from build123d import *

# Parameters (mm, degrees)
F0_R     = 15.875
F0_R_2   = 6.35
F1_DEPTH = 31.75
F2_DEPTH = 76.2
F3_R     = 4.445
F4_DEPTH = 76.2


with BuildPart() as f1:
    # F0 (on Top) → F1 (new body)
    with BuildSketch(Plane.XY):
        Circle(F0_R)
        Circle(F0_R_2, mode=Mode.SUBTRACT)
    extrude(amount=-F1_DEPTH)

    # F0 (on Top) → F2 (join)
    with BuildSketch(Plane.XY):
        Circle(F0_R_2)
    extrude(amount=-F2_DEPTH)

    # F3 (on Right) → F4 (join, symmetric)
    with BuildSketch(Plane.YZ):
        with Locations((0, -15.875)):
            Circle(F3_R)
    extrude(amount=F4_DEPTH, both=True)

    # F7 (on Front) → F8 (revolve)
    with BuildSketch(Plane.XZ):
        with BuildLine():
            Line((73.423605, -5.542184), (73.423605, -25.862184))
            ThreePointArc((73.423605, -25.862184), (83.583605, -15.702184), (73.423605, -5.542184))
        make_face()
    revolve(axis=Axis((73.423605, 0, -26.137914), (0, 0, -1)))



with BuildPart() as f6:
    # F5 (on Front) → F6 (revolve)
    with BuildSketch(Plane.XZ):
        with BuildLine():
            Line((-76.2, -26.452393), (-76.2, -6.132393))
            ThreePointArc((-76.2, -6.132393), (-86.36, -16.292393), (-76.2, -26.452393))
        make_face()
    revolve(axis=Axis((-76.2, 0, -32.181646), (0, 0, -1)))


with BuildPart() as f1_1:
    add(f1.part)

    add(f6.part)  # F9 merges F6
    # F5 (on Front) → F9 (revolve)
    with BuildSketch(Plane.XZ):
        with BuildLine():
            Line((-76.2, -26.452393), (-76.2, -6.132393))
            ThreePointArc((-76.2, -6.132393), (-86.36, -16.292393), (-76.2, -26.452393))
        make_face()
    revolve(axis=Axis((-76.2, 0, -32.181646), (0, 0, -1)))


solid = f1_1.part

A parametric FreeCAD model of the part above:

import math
import FreeCAD as App
import Part
import Sketcher

V = App.Vector
Q = App.Units.Quantity

doc = App.newDocument("Part")
body = doc.addObject("PartDesign::Body", "Body")

# Sketch on XY plane
sketch1 = body.newObject("Sketcher::SketchObject", "Sketch")
sketch1.AttachmentSupport = (doc.getObject("XY_Plane"), [""])
sketch1.MapMode = "FlatFace"
sketch1.addGeometry([
    Part.Circle(V(0, 0, 0), V(0, 0, 1), 16),
    Part.Circle(V(0, 0, 0), V(0, 0, 1), 6),
], False)
sketch1.addConstraint([
    Sketcher.Constraint("Coincident", 0, 3, -1, 1),
    Sketcher.Constraint("Coincident", 1, 3, -1, 1),
    Sketcher.Constraint("Diameter", 1, Q("0.5 in")),
    Sketcher.Constraint("Diameter", 0, Q("1.25 in")),
])
pad1 = body.newObject("PartDesign::Pad", "Pad")
pad1.Profile = sketch1
pad1.Length = Q("1.25 in")
pad1.Reversed = True

# Sketch on XY plane
sketch2 = body.newObject("Sketcher::SketchObject", "Sketch001")
sketch2.AttachmentSupport = (doc.getObject("XY_Plane"), [""])
sketch2.MapMode = "FlatFace"
sketch2.addGeometry(Part.Circle(V(0, 0, 0), V(0, 0, 1), 6), False)
sketch2.addConstraint([
    Sketcher.Constraint("Coincident", 0, 3, -1, 1),
    Sketcher.Constraint("Diameter", 0, Q("0.5 in")),
])
pad2 = body.newObject("PartDesign::Pad", "Pad001")
pad2.Profile = sketch2
pad2.Length = Q("3 in")
pad2.Reversed = True

# Sketch on YZ plane
sketch3 = body.newObject("Sketcher::SketchObject", "Sketch002")
sketch3.AttachmentSupport = (doc.getObject("YZ_Plane"), [""])
sketch3.MapMode = "FlatFace"
sketch3.addGeometry(Part.Circle(V(0, -15.9, 0), V(0, 0, 1), 4.4), False)
sketch3.addConstraint([
    Sketcher.Constraint("PointOnObject", 0, 3, -2),
    Sketcher.Constraint("Diameter", 0, Q("0.35 in")),
    Sketcher.Constraint("DistanceY", 0, 3, -1, 1, Q("0.625 in")),
])
pad3 = body.newObject("PartDesign::Pad", "Pad002")
pad3.Profile = sketch3
pad3.Length = Q("6 in")
pad3.Midplane = True

# Sketch on XZ plane
sketch4 = body.newObject("Sketcher::SketchObject", "Sketch003")
sketch4.AttachmentSupport = (doc.getObject("XZ_Plane"), [""])
sketch4.MapMode = "FlatFace"
sketch4.addGeometry([
    Part.LineSegment(V(73, -6, 0), V(73, -26, 0)),
    Part.ArcOfCircle(Part.Circle(V(73, -16, 0), V(0, 0, 1), 10), math.radians(-90), math.radians(90)),
], False)
sketch4.addGeometry(Part.LineSegment(V(73, -6, 0), V(73, -26, 0)), True)  # axis
sketch4.addConstraint([
    Sketcher.Constraint("Coincident", 0, 1, 1, 2),
    Sketcher.Constraint("Coincident", 1, 1, 0, 2),
    Sketcher.Constraint("Vertical", 0),
    Sketcher.Constraint("Vertical", 2),
    Sketcher.Constraint("Coincident", 2, 1, 0, 1),
    Sketcher.Constraint("Vertical", 1, 3, 0, 1),
    Sketcher.Constraint("Equal", 0, 2),
    Sketcher.Constraint("Radius", 1, Q("0.4 in")),
    Sketcher.Constraint("DistanceX", -1, 1, 1, 3, 73.423605),
    Sketcher.Constraint("DistanceY", 1, 3, -1, 1, 15.702184),
])
revolution = body.newObject("PartDesign::Revolution", "Revolution")
revolution.Profile = sketch4
revolution.ReferenceAxis = (sketch4, ["Axis0"])
revolution.Angle = 360
body2 = doc.addObject("PartDesign::Body", "Body001")

# Sketch on XZ plane
sketch5 = body2.newObject("Sketcher::SketchObject", "Sketch004")
sketch5.AttachmentSupport = (doc.getObject("XZ_Plane001"), [""])
sketch5.MapMode = "FlatFace"
sketch5.addGeometry([
    Part.LineSegment(V(-76, -26, 0), V(-76, -6, 0)),
    Part.ArcOfCircle(Part.Circle(V(-76, -16, 0), V(0, 0, 1), 10), math.radians(90), math.radians(270)),
], False)
sketch5.addGeometry(Part.LineSegment(V(-76, -6, 0), V(-76, -26, 0)), True)  # axis
sketch5.addConstraint([
    Sketcher.Constraint("Coincident", 0, 1, 1, 2),
    Sketcher.Constraint("Coincident", 1, 1, 0, 2),
    Sketcher.Constraint("Vertical", 0),
    Sketcher.Constraint("Vertical", 2),
    Sketcher.Constraint("Coincident", 2, 1, 1, 1),
    Sketcher.Constraint("Vertical", 1, 3, 0, 1),
    Sketcher.Constraint("Equal", 0, 2),
    Sketcher.Constraint("Radius", 1, Q("0.4 in")),
    Sketcher.Constraint("DistanceX", 1, 3, -1, 1, Q("3 in")),
    Sketcher.Constraint("DistanceY", 1, 3, -1, 1, 16.292393),
])
revolution2 = body2.newObject("PartDesign::Revolution", "Revolution001")
revolution2.Profile = sketch5
revolution2.ReferenceAxis = (sketch5, ["Axis0"])
revolution2.Angle = 360
doc.recompute()

boolean = body.newObject("PartDesign::Boolean", "Boolean")
boolean.Type = "Fuse"
boolean.addObjects([body2])

# Sketch on XZ plane
sketch6 = body.newObject("Sketcher::SketchObject", "Sketch005")
sketch6.AttachmentSupport = (doc.getObject("XZ_Plane"), [""])
sketch6.MapMode = "FlatFace"
sketch6.addGeometry([
    Part.LineSegment(V(-76, -26, 0), V(-76, -6, 0)),
    Part.ArcOfCircle(Part.Circle(V(-76, -16, 0), V(0, 0, 1), 10), math.radians(90), math.radians(270)),
], False)
sketch6.addGeometry(Part.LineSegment(V(-76, -6, 0), V(-76, -26, 0)), True)  # axis
sketch6.addConstraint([
    Sketcher.Constraint("Coincident", 0, 1, 1, 2),
    Sketcher.Constraint("Coincident", 1, 1, 0, 2),
    Sketcher.Constraint("Vertical", 0),
    Sketcher.Constraint("Vertical", 2),
    Sketcher.Constraint("Coincident", 2, 1, 1, 1),
    Sketcher.Constraint("Vertical", 1, 3, 0, 1),
    Sketcher.Constraint("Equal", 0, 2),
    Sketcher.Constraint("Radius", 1, Q("0.4 in")),
    Sketcher.Constraint("DistanceX", 1, 3, -1, 1, Q("3 in")),
    Sketcher.Constraint("DistanceY", 1, 3, -1, 1, 16.292393),
])
revolution3 = body.newObject("PartDesign::Revolution", "Revolution002")
revolution3.Profile = sketch6
revolution3.ReferenceAxis = (sketch6, ["Axis0"])
revolution3.Angle = 360

doc.recompute()
